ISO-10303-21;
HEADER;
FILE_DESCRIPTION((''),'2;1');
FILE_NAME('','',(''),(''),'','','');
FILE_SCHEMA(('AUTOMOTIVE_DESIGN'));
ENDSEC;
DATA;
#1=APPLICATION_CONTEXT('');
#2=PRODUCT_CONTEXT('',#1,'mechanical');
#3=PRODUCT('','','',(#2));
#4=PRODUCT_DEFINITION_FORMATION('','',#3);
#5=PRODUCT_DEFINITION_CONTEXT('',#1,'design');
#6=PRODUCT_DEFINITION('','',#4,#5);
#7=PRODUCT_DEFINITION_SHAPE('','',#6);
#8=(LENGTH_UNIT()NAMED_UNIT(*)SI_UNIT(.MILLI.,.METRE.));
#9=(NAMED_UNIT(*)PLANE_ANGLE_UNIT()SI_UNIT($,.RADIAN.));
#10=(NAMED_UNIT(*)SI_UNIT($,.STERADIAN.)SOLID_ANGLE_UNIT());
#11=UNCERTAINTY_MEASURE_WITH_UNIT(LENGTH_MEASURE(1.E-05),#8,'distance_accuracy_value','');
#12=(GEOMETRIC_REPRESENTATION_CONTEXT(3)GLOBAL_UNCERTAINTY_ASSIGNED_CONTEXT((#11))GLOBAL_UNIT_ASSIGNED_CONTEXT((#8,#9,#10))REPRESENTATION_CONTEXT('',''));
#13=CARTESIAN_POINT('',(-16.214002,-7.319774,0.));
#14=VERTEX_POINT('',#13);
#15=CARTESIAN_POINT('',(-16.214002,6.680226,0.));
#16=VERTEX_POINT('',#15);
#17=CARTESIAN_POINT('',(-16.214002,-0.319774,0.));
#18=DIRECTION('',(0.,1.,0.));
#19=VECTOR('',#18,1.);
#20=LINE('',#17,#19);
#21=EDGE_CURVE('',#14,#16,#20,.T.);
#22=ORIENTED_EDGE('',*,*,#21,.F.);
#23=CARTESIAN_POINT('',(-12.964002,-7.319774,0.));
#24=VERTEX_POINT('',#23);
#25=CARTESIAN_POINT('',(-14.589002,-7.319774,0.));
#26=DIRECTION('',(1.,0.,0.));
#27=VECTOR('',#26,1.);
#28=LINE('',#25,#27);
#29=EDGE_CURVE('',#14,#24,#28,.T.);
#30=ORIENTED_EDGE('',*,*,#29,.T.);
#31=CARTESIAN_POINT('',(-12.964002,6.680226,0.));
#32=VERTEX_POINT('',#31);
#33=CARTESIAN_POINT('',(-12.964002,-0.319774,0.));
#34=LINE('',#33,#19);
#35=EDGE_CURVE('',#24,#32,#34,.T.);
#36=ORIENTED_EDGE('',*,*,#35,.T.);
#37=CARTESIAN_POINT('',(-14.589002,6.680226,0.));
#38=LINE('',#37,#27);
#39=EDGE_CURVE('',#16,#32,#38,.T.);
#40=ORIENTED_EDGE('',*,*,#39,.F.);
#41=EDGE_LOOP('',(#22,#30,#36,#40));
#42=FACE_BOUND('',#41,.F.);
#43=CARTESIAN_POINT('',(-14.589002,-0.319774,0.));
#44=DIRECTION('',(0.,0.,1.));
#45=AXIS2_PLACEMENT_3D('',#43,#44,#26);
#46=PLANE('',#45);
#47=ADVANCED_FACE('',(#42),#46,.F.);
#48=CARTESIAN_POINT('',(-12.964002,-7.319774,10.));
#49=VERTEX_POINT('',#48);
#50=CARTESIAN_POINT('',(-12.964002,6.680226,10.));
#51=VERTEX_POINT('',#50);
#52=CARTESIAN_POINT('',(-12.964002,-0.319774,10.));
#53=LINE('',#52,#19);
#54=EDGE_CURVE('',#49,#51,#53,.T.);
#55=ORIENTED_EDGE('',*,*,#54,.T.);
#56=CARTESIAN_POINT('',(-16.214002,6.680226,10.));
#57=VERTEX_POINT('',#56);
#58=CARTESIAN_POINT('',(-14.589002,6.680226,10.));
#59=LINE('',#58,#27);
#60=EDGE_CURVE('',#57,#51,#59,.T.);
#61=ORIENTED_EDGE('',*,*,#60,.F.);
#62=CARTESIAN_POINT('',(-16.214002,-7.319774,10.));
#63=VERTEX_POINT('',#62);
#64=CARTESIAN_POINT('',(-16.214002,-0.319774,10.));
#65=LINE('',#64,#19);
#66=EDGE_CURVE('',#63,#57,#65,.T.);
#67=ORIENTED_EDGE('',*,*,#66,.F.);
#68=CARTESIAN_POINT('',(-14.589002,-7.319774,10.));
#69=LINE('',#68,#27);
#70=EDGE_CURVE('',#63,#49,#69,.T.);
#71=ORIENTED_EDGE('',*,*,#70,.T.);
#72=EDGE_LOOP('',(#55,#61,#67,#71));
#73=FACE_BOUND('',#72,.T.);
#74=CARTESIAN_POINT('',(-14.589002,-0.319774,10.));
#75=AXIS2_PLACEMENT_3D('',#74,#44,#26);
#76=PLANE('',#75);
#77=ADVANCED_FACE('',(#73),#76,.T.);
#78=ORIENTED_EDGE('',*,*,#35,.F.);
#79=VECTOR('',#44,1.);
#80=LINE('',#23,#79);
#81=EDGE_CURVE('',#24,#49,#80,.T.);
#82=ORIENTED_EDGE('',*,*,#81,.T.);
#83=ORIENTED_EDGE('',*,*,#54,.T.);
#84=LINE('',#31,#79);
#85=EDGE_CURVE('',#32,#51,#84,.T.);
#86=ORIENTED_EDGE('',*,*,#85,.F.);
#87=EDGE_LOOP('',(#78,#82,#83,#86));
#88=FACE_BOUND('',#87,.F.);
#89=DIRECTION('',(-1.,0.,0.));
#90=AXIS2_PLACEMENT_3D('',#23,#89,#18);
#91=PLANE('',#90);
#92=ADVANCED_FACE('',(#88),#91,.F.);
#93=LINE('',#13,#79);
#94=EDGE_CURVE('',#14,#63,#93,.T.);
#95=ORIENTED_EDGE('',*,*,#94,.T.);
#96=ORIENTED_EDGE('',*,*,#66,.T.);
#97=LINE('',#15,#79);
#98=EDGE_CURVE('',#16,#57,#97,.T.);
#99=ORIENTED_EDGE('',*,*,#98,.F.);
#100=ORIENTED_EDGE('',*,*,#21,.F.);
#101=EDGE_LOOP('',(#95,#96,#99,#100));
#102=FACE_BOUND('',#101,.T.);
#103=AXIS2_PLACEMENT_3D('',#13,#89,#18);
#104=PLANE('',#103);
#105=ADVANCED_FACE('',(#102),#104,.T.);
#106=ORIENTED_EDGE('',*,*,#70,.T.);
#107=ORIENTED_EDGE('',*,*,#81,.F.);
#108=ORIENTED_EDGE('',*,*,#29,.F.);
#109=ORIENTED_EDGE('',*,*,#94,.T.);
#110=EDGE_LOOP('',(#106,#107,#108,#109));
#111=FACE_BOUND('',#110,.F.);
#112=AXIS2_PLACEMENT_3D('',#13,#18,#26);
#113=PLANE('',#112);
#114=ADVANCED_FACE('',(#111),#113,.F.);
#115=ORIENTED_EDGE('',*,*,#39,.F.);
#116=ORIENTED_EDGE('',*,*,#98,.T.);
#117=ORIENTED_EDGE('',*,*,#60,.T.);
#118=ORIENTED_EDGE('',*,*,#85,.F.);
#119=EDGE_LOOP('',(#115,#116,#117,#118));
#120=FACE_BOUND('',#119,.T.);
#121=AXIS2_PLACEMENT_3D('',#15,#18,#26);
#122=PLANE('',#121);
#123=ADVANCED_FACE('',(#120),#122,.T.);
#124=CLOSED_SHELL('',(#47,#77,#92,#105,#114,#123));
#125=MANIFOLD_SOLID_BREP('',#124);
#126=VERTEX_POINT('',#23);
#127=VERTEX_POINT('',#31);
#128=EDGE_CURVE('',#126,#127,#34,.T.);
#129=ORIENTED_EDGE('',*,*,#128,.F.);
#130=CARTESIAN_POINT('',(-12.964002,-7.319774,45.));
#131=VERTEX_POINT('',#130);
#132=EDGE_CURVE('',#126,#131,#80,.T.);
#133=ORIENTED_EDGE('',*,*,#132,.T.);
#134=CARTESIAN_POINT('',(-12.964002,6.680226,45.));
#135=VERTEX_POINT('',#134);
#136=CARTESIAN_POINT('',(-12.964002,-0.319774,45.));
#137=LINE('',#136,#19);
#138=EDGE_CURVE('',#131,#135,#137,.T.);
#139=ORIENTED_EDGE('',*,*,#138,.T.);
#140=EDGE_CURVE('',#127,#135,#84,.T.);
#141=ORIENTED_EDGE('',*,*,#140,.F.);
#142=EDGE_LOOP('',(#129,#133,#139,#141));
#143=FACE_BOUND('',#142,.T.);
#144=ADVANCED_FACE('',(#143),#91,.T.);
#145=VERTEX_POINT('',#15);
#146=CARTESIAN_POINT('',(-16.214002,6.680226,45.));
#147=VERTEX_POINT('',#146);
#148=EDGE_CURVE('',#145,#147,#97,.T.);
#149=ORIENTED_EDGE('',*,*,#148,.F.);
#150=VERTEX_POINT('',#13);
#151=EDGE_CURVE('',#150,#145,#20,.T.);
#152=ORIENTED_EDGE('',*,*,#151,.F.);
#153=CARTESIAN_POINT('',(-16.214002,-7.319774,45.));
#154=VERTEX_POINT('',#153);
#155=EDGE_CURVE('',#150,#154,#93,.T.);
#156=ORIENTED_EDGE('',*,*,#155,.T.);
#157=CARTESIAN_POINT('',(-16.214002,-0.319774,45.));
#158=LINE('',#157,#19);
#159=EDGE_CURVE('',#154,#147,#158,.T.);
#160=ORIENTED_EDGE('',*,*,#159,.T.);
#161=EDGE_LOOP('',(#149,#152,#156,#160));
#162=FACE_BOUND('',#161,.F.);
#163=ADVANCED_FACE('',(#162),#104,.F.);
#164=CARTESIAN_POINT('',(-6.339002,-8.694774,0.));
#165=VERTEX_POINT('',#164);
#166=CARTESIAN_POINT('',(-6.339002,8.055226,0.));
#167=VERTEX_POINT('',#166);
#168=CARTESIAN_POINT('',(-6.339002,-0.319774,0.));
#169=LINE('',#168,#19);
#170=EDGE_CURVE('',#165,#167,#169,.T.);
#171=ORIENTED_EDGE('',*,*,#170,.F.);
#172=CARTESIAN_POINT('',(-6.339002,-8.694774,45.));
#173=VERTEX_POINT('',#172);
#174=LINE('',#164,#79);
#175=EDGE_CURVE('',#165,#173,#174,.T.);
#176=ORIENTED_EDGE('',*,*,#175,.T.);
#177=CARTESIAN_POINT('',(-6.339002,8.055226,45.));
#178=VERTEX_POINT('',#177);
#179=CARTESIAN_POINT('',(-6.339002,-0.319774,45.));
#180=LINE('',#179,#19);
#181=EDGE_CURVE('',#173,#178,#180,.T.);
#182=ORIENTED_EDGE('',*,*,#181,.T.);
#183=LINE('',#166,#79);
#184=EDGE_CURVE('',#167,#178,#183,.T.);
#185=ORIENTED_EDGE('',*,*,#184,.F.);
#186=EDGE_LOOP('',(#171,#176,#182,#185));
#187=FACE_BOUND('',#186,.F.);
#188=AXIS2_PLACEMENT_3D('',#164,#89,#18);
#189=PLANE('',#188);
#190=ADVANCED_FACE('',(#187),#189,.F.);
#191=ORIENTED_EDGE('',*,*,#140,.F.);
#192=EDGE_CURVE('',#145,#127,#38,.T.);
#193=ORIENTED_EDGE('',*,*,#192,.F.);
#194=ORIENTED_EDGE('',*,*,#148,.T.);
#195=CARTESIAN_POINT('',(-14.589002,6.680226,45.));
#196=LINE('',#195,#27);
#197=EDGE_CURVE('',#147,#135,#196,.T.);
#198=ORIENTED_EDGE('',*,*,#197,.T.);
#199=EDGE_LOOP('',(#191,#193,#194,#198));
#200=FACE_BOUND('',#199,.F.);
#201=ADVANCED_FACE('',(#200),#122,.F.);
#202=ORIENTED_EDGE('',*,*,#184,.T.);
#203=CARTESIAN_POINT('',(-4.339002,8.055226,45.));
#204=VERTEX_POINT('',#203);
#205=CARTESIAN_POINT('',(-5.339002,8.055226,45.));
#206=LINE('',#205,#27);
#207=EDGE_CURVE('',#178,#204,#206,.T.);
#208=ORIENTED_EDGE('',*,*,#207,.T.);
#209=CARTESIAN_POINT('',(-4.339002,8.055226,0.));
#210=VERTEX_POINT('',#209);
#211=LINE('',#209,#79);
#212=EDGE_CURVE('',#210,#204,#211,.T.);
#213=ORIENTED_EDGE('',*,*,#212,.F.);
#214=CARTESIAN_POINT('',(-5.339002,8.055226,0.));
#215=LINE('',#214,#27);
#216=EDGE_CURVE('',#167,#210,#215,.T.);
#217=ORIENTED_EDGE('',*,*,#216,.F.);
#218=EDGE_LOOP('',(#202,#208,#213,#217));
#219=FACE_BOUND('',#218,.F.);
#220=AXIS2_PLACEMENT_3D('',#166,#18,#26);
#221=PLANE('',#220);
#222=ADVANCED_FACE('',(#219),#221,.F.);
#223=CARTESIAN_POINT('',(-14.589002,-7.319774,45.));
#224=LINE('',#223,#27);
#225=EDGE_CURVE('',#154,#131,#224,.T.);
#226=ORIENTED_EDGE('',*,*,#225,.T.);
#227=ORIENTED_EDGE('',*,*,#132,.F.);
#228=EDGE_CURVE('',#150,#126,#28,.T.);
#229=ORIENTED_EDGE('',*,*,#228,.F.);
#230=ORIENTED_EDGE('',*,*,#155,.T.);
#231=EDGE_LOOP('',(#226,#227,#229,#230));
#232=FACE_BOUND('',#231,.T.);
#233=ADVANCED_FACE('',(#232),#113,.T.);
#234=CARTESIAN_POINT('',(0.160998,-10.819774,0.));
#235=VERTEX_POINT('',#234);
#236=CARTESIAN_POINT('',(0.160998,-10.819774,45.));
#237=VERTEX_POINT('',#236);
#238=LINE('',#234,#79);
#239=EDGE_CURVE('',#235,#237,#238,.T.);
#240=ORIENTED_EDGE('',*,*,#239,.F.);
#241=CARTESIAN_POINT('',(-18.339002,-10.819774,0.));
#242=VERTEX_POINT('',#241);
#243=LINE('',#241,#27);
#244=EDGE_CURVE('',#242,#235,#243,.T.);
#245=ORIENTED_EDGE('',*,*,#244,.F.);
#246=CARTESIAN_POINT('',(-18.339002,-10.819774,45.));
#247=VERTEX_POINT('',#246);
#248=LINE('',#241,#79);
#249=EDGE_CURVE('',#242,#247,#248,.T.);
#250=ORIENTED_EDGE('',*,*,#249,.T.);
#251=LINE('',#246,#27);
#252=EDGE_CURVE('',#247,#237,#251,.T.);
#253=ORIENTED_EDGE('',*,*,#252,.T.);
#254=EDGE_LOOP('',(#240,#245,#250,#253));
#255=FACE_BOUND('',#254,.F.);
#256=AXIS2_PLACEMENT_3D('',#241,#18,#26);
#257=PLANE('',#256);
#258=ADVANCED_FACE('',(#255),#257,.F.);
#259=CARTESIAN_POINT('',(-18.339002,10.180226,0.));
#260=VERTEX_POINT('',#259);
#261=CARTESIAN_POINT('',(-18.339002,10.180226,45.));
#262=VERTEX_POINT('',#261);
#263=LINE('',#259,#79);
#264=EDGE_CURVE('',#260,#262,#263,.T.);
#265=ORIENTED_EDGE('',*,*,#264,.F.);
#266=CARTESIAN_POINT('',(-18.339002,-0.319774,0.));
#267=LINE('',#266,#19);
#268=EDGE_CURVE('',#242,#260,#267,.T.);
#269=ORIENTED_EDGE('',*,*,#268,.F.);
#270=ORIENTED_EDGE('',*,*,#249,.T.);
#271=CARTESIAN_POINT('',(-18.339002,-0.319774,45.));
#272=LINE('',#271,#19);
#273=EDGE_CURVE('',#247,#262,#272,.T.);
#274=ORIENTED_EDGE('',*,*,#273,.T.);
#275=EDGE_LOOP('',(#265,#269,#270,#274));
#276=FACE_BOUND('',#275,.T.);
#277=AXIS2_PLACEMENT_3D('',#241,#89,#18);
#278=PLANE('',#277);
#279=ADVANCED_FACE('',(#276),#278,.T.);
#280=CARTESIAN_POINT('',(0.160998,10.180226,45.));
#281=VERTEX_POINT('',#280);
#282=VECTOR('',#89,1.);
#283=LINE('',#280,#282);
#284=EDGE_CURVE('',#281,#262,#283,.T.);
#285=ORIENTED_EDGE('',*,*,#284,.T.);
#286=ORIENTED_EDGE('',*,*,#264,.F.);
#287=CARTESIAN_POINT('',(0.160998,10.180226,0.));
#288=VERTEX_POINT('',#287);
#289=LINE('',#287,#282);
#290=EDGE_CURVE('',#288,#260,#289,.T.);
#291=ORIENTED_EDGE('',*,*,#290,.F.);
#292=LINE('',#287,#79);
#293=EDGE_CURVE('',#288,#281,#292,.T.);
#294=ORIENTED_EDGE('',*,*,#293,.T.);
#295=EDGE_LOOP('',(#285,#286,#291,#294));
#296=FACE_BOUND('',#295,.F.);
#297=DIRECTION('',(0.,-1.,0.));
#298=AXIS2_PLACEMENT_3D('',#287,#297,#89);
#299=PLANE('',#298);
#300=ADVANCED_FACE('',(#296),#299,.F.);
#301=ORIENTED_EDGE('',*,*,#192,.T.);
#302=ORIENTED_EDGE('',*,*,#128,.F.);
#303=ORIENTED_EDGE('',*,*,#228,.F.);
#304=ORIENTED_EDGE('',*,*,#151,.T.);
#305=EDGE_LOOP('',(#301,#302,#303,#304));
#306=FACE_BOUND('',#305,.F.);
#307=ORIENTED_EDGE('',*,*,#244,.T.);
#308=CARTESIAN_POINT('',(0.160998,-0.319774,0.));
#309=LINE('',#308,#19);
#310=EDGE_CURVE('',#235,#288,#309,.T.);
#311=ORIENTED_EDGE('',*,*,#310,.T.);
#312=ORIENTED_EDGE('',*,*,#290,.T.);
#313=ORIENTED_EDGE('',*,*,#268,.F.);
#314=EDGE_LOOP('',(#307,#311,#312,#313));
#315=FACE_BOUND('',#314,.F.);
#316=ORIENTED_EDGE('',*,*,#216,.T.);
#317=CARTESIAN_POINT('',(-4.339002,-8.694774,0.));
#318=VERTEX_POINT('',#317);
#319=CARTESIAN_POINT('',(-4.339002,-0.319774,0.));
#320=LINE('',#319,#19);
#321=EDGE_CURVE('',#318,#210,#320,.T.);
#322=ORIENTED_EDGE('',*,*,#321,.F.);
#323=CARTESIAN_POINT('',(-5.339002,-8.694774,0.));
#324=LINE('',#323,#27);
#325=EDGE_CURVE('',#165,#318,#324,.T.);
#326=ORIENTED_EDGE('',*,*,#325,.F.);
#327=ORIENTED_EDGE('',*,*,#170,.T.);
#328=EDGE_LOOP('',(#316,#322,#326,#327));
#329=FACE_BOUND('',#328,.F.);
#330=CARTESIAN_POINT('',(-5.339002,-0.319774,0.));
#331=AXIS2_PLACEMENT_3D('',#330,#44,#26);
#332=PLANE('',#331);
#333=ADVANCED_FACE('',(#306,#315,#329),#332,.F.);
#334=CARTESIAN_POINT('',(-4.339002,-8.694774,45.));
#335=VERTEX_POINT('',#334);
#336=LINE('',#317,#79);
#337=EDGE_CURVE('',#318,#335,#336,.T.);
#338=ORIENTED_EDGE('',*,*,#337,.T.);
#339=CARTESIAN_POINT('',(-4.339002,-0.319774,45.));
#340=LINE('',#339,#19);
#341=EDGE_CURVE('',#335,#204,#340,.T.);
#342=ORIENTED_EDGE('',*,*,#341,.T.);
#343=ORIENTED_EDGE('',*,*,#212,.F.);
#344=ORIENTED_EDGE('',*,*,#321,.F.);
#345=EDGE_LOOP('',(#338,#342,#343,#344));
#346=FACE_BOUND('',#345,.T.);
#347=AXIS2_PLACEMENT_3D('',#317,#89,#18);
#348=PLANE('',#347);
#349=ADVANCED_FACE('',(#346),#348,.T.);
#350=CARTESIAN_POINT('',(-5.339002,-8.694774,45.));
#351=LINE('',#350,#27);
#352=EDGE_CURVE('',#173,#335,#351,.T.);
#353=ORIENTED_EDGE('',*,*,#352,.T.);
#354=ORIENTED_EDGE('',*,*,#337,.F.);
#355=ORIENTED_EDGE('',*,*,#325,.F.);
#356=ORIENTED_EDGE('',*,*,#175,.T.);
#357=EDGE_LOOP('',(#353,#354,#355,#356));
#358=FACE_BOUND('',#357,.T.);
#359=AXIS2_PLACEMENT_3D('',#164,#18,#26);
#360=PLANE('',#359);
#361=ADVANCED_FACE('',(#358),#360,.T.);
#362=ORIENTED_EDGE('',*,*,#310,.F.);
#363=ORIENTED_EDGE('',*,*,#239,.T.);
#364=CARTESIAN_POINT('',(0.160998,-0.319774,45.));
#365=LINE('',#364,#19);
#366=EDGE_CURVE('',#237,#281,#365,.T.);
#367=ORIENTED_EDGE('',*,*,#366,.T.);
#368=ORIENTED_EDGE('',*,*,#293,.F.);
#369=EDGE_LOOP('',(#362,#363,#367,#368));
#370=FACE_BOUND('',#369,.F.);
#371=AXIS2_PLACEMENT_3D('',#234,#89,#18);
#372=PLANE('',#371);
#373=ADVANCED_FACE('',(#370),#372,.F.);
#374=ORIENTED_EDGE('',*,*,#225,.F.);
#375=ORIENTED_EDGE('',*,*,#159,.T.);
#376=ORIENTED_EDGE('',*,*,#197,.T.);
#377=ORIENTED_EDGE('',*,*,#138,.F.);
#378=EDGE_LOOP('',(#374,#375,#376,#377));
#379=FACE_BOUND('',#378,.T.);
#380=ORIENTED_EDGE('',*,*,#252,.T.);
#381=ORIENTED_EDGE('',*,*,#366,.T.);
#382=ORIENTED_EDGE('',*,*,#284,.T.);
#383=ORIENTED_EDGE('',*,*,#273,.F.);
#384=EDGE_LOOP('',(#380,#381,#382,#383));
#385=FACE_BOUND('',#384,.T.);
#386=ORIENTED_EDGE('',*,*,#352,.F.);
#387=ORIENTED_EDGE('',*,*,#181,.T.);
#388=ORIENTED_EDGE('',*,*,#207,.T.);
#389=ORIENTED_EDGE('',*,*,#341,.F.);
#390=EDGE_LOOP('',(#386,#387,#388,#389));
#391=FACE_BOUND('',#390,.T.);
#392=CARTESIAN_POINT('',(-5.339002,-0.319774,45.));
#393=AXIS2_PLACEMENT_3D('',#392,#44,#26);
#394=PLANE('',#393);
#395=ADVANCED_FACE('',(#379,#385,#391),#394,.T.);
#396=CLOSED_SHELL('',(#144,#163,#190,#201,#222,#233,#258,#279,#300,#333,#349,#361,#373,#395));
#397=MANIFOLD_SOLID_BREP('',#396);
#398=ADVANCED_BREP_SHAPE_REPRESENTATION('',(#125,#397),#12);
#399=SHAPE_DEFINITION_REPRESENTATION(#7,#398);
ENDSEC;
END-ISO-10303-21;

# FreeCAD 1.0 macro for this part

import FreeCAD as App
import Part
import Sketcher

doc = App.newDocument("Part")
params = doc.addObject("Spreadsheet::Sheet", "Params")
for row, (alias, value) in enumerate([
    ("sketch1_height", "14 mm"),
    ("sketch1_width", "3.25 mm"),
    ("pad1_length", "10 mm"),
    ("sketch2_width", "2 mm"),
    ("sketch2_height", "21 mm"),
    ("sketch2_height2", "14 mm"),
    ("sketch2_width2", "18.5 mm"),
    ("sketch2_width3", "3.25 mm"),
    ("pad2_length", "45 mm"),
], start=1):
    params.set(f"A{row}", alias)
    params.set(f"B{row}", "=" + value)
    params.setAlias(f"B{row}", alias)

body = doc.addObject("PartDesign::Body", "Body")

sketch1 = doc.addObject("Sketcher::SketchObject", "Sketch")
body.addObject(sketch1)
sketch1.AttachmentSupport = (doc.XY_Plane, [""])
sketch1.MapMode = "FlatFace"
sketch1.addGeometry(Part.LineSegment(App.Vector(-16.2, 6.7, 0), App.Vector(-16.2, -7.3, 0)), False)
sketch1.addGeometry(Part.LineSegment(App.Vector(-16.2, -7.3, 0), App.Vector(-13, -7.3, 0)), False)
sketch1.addGeometry(Part.LineSegment(App.Vector(-13, -7.3, 0), App.Vector(-13, 6.7, 0)), False)
sketch1.addGeometry(Part.LineSegment(App.Vector(-13, 6.7, 0), App.Vector(-16.2, 6.7, 0)), False)
sketch1.addConstraint(Sketcher.Constraint("Coincident", 0, 2, 1, 1))
sketch1.addConstraint(Sketcher.Constraint("Coincident", 1, 2, 2, 1))
sketch1.addConstraint(Sketcher.Constraint("Coincident", 2, 2, 3, 1))
sketch1.addConstraint(Sketcher.Constraint("Coincident", 3, 2, 0, 1))
sketch1.addConstraint(Sketcher.Constraint("Vertical", 0))
sketch1.addConstraint(Sketcher.Constraint("Horizontal", 1))
sketch1.addConstraint(Sketcher.Constraint("Vertical", 2))
sketch1.addConstraint(Sketcher.Constraint("Horizontal", 3))
sketch1.addConstraint(Sketcher.Constraint("DistanceY", 0, 2, 0, 1, 14.0))
sketch1.addConstraint(Sketcher.Constraint("DistanceX", 1, 1, 1, 2, 3.25))
sketch1.addConstraint(Sketcher.Constraint("DistanceX", 0, 2, -1, 1, 16.214002))
sketch1.addConstraint(Sketcher.Constraint("DistanceY", 0, 2, -1, 1, 7.319774))
sketch1.setExpression("Constraints[8]", "Params.sketch1_height")
sketch1.setExpression("Constraints[9]", "Params.sketch1_width")
pad1 = doc.addObject("PartDesign::Pad", "Pad")
body.addObject(pad1)
pad1.Profile = sketch1
pad1.setExpression("Length", "Params.pad1_length")
body2 = doc.addObject("PartDesign::Body", "Body001")

sketch2 = doc.addObject("Sketcher::SketchObject", "Sketch001")
body2.addObject(sketch2)
sketch2.AttachmentSupport = (doc.getObject("XY_Plane001"), [""])
sketch2.MapMode = "FlatFace"
sketch2.addGeometry(Part.LineSegment(App.Vector(0.2, -10.8, 0), App.Vector(0.2, 10.2, 0)), False)
sketch2.addGeometry(Part.LineSegment(App.Vector(0.2, 10.2, 0), App.Vector(-18.3, 10.2, 0)), False)
sketch2.addGeometry(Part.LineSegment(App.Vector(-18.3, 10.2, 0), App.Vector(-18.3, -10.8, 0)), False)
sketch2.addGeometry(Part.LineSegment(App.Vector(-18.3, -10.8, 0), App.Vector(0.2, -10.8, 0)), False)
sketch2.addGeometry(Part.LineSegment(App.Vector(-13, -7.3, 0), App.Vector(-16.2, -7.3, 0)), False)
sketch2.addGeometry(Part.LineSegment(App.Vector(-16.2, -7.3, 0), App.Vector(-16.2, 6.7, 0)), False)
sketch2.addGeometry(Part.LineSegment(App.Vector(-16.2, 6.7, 0), App.Vector(-13, 6.7, 0)), False)
sketch2.addGeometry(Part.LineSegment(App.Vector(-13, 6.7, 0), App.Vector(-13, -7.3, 0)), False)
sketch2.addGeometry(Part.LineSegment(App.Vector(-4.3, -8.7, 0), App.Vector(-6.3, -8.7, 0)), False)
sketch2.addGeometry(Part.LineSegment(App.Vector(-6.3, -8.7, 0), App.Vector(-6.3, 8.1, 0)), False)
sketch2.addGeometry(Part.LineSegment(App.Vector(-6.3, 8.1, 0), App.Vector(-4.3, 8.1, 0)), False)
sketch2.addGeometry(Part.LineSegment(App.Vector(-4.3, 8.1, 0), App.Vector(-4.3, -8.7, 0)), False)
sketch2.addConstraint(Sketcher.Constraint("Coincident", 0, 2, 1, 1))
sketch2.addConstraint(Sketcher.Constraint("Coincident", 1, 2, 2, 1))
sketch2.addConstraint(Sketcher.Constraint("Coincident", 2, 2, 3, 1))
sketch2.addConstraint(Sketcher.Constraint("Coincident", 3, 2, 0, 1))
sketch2.addConstraint(Sketcher.Constraint("Coincident", 4, 2, 5, 1))
sketch2.addConstraint(Sketcher.Constraint("Coincident", 5, 2, 6, 1))
sketch2.addConstraint(Sketcher.Constraint("Coincident", 6, 2, 7, 1))
sketch2.addConstraint(Sketcher.Constraint("Coincident", 7, 2, 4, 1))
sketch2.addConstraint(Sketcher.Constraint("Coincident", 8, 2, 9, 1))
sketch2.addConstraint(Sketcher.Constraint("Coincident", 9, 2, 10, 1))
sketch2.addConstraint(Sketcher.Constraint("Coincident", 10, 2, 11, 1))
sketch2.addConstraint(Sketcher.Constraint("Coincident", 11, 2, 8, 1))
sketch2.addConstraint(Sketcher.Constraint("Vertical", 0))
sketch2.addConstraint(Sketcher.Constraint("Horizontal", 1))
sketch2.addConstraint(Sketcher.Constraint("Vertical", 2))
sketch2.addConstraint(Sketcher.Constraint("Horizontal", 3))
sketch2.addConstraint(Sketcher.Constraint("Horizontal", 4))
sketch2.addConstraint(Sketcher.Constraint("Vertical", 5))
sketch2.addConstraint(Sketcher.Constraint("Horizontal", 6))
sketch2.addConstraint(Sketcher.Constraint("Vertical", 7))
sketch2.addConstraint(Sketcher.Constraint("Horizontal", 8))
sketch2.addConstraint(Sketcher.Constraint("Vertical", 9))
sketch2.addConstraint(Sketcher.Constraint("Horizontal", 10))
sketch2.addConstraint(Sketcher.Constraint("Vertical", 11))
sketch2.addConstraint(Sketcher.Constraint("DistanceX", 8, 2, 8, 1, 2.0))
sketch2.addConstraint(Sketcher.Constraint("DistanceY", 0, 1, 0, 2, 21.0))
sketch2.addConstraint(Sketcher.Constraint("DistanceY", 5, 1, 5, 2, 14.0))
sketch2.addConstraint(Sketcher.Constraint("DistanceX", 1, 2, 1, 1, 18.5))
sketch2.addConstraint(Sketcher.Constraint("DistanceX", 2, 2, 8, 2, 12.0))
sketch2.addConstraint(Sketcher.Constraint("DistanceX", 4, 2, 4, 1, 3.25))
sketch2.addConstraint(Sketcher.Constraint("DistanceY", 9, 1, 9, 2, 16.75))
sketch2.addConstraint(Sketcher.Constraint("DistanceY", 2, 2, 4, 2, 3.5))
sketch2.addConstraint(Sketcher.Constraint("DistanceX", 8, 2, -1, 1, 6.339002))
sketch2.addConstraint(Sketcher.Constraint("DistanceX", 2, 2, 4, 2, 2.125))
sketch2.addConstraint(Sketcher.Constraint("DistanceY", 8, 2, 7, 2, 1.375))
sketch2.addConstraint(Sketcher.Constraint("DistanceY", -1, 1, 0, 2, 10.180226))
sketch2.setExpression("Constraints[24]", "Params.sketch2_width")
sketch2.setExpression("Constraints[25]", "Params.sketch2_height")
sketch2.setExpression("Constraints[26]", "Params.sketch2_height2")
sketch2.setExpression("Constraints[27]", "Params.sketch2_width2")
sketch2.setExpression("Constraints[29]", "Params.sketch2_width3")
pad2 = doc.addObject("PartDesign::Pad", "Pad001")
body2.addObject(pad2)
pad2.Profile = sketch2
pad2.setExpression("Length", "Params.pad2_length")

doc.recompute()
